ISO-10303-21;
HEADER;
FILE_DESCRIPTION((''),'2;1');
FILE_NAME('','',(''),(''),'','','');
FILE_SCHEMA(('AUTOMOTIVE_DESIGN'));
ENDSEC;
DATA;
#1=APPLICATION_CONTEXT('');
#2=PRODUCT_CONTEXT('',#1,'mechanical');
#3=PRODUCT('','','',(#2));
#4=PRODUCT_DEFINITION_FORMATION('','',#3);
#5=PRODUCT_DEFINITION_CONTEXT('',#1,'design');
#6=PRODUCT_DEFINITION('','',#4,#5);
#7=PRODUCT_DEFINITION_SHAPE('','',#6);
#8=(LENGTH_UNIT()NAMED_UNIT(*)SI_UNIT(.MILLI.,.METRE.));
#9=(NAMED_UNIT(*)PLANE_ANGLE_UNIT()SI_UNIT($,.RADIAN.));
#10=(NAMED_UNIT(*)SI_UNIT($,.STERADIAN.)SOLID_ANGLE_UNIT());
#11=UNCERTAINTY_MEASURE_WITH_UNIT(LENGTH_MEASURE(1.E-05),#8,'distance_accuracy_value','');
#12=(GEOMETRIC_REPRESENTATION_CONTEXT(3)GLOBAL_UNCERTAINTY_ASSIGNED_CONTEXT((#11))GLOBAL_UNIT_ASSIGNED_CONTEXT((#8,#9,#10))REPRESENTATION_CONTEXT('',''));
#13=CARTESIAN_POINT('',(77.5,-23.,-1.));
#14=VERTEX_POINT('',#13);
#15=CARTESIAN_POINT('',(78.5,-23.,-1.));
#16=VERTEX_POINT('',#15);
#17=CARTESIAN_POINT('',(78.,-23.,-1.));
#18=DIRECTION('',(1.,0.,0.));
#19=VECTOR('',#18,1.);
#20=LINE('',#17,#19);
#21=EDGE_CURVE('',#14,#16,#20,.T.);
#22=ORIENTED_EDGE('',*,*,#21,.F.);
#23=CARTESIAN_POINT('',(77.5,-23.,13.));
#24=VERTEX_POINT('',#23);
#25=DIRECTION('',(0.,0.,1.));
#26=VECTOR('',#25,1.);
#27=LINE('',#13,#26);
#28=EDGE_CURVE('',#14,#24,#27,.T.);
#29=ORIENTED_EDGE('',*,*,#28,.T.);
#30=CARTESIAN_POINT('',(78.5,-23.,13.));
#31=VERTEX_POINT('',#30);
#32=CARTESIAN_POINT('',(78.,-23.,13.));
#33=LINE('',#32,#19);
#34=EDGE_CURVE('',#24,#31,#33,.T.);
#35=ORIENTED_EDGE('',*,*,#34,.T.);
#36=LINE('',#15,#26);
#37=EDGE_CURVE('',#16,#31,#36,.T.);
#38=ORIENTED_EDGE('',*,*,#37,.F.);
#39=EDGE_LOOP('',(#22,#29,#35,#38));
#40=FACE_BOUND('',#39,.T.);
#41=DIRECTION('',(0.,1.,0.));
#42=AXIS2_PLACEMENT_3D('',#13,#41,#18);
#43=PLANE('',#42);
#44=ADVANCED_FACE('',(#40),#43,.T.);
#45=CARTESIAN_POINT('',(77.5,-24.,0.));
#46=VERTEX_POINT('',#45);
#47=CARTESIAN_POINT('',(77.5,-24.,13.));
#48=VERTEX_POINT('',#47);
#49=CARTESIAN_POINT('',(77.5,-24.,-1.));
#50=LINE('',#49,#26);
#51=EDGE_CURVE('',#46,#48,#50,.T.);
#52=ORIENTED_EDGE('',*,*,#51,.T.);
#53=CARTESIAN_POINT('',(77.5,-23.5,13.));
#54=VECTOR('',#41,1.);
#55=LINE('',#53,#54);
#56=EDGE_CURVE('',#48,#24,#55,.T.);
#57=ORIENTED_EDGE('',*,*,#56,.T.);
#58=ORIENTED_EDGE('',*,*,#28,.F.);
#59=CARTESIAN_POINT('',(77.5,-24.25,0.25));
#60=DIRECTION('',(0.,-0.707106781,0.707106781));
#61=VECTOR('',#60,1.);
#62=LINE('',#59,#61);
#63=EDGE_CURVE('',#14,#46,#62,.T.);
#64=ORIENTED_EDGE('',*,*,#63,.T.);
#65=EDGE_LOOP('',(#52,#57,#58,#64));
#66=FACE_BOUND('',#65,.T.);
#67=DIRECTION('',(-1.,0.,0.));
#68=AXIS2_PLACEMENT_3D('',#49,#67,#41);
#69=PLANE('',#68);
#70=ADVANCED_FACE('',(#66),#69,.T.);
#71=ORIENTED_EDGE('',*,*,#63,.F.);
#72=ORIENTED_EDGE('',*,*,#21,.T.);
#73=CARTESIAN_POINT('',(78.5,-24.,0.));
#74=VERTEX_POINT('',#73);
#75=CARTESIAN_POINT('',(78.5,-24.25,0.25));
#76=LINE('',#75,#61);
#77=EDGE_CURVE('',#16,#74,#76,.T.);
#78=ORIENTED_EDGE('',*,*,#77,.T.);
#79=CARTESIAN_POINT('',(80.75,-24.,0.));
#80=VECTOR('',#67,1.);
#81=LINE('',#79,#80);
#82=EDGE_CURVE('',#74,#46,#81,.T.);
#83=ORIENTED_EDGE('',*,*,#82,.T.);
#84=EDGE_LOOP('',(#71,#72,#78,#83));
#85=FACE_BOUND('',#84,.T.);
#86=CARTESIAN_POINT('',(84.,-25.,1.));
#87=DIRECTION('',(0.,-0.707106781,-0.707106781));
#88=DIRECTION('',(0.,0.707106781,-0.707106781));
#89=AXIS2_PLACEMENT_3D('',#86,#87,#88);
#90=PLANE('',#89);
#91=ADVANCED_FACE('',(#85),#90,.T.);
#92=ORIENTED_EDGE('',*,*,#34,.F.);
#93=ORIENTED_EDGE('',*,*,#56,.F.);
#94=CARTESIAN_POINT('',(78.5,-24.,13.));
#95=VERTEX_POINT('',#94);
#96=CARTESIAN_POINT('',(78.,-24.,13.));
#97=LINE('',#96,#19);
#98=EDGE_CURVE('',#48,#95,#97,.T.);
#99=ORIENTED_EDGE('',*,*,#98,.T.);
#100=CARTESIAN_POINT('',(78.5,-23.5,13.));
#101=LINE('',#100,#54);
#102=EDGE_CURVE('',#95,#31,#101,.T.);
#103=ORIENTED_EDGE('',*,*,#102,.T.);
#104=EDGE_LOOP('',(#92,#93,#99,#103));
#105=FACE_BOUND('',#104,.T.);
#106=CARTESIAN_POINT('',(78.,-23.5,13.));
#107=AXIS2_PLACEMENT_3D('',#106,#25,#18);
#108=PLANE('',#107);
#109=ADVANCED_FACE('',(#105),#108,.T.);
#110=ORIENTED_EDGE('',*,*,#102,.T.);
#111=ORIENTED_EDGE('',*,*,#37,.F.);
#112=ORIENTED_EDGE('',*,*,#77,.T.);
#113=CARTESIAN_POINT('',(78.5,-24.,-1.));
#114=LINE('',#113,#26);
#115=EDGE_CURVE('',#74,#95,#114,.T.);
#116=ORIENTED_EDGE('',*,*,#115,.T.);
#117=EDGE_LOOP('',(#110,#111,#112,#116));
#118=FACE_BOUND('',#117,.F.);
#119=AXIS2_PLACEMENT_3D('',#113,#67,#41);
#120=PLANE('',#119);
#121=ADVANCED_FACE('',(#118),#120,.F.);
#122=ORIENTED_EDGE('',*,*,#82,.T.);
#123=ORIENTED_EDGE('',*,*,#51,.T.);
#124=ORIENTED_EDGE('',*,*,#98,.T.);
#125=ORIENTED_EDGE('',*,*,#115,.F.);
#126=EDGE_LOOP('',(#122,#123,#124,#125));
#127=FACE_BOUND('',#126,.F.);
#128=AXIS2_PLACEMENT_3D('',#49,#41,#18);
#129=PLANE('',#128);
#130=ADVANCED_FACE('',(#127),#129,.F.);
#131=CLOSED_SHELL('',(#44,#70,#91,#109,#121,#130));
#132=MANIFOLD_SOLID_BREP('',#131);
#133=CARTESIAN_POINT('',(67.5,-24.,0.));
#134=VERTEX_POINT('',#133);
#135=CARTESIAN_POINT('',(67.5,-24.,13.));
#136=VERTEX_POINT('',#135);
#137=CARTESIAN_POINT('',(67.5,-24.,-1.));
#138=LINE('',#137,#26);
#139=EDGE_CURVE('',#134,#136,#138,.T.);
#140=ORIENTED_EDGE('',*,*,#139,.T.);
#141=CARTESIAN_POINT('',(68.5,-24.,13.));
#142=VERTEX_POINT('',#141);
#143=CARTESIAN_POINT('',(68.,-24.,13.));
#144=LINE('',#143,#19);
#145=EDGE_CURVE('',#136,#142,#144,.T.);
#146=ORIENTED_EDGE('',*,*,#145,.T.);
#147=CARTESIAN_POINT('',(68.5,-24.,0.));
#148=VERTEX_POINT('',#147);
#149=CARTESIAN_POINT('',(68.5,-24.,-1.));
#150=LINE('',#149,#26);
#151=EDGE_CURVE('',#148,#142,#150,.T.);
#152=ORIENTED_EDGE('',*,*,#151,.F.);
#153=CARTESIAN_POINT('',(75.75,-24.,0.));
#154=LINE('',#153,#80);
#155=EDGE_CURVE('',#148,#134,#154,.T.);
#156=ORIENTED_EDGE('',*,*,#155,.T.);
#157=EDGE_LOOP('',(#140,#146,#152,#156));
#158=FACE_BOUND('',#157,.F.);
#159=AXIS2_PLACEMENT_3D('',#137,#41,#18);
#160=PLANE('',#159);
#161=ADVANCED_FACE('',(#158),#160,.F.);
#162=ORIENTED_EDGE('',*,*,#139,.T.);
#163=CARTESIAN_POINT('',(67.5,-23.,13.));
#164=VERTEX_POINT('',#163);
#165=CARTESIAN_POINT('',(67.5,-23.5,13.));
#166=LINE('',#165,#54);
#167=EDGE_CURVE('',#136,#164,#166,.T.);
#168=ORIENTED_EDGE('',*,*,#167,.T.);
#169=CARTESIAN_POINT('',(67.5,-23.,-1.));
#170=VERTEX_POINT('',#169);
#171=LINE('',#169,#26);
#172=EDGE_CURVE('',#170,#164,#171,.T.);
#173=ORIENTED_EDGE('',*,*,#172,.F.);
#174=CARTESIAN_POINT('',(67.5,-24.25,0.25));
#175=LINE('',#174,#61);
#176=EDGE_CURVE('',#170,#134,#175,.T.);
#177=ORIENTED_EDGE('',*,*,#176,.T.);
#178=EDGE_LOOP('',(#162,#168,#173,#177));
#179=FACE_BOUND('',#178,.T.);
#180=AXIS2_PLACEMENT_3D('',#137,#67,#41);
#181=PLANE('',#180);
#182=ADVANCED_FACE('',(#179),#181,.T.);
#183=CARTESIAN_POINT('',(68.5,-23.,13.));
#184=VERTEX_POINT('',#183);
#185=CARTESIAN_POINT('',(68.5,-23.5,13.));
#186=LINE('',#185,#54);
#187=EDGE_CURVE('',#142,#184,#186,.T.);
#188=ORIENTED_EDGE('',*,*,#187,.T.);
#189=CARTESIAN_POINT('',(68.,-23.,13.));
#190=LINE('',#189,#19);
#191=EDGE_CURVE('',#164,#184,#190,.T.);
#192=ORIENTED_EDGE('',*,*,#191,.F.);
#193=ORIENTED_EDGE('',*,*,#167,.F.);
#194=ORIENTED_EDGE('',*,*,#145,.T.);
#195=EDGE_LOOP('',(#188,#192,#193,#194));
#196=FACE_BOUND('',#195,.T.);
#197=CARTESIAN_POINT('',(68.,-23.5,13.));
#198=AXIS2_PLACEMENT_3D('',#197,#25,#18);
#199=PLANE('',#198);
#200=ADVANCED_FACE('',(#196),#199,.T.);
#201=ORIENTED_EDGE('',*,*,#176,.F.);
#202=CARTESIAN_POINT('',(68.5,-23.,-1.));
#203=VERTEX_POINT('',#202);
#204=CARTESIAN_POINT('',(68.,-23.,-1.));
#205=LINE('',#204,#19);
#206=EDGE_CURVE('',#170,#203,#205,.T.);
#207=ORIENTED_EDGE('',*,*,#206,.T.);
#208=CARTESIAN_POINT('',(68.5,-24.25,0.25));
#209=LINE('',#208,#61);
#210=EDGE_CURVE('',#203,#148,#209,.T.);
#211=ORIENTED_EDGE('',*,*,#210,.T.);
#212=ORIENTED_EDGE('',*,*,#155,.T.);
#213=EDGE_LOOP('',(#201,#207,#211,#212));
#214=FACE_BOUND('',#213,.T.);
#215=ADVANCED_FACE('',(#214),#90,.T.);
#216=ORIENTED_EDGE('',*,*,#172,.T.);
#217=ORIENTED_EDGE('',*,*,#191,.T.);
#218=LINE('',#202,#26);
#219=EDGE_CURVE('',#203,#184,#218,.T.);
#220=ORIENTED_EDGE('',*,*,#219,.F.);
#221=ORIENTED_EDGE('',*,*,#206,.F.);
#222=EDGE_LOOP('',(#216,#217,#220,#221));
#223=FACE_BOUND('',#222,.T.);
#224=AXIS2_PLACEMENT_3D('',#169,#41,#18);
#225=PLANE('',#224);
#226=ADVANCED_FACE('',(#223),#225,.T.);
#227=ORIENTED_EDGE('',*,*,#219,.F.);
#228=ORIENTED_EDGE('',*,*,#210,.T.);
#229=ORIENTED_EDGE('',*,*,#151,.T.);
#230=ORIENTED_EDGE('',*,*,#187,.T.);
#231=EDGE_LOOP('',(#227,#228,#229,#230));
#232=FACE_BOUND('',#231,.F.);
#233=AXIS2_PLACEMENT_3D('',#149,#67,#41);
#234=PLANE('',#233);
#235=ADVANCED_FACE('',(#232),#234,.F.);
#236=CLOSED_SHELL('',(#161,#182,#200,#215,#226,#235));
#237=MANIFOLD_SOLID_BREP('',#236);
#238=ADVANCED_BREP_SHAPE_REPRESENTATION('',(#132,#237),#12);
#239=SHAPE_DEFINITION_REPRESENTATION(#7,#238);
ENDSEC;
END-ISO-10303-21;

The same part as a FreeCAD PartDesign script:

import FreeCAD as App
import Part
import Sketcher

V = App.Vector


def add_polygon(sketch, points):
    """Adds a closed chain of lines whose ends are joined by coincident constraints."""
    first, n = sketch.GeometryCount, len(points)
    for a, b in zip(points, points[1:] + points[:1]):
        sketch.addGeometry(Part.LineSegment(App.Vector(*a, 0), App.Vector(*b, 0)), False)
    for i in range(n):
        sketch.addConstraint(Sketcher.Constraint("Coincident", first + i, 2, first + (i + 1) % n, 1))

doc = App.newDocument("Part")
params = doc.addObject("Spreadsheet::Sheet", "Params")
for row, (alias, value) in enumerate([
    ("sketch1_width", "3 mm"),
    ("pad1_length", "20 mm"),
    ("sketch2_width", "1 mm"),
    ("pad2_length", "14 mm"),
], start=1):
    params.set(f"A{row}", alias)
    params.set(f"B{row}", "=" + value)
    params.setAlias(f"B{row}", alias)

body = doc.addObject("PartDesign::Body", "Body")

# Sketch on YZ plane
sketch1 = body.newObject("Sketcher::SketchObject", "Sketch")
sketch1.AttachmentSupport = (doc.getObject("YZ_Plane"), [""])
sketch1.MapMode = "FlatFace"
sketch1.AttachmentOffset = App.Placement(V(0, 0, 84), App.Rotation())
add_polygon(sketch1, [(-22, -2), (-25, 1), (-25, -2)])  # lines 0-2
sketch1.addConstraint([
    Sketcher.Constraint("Vertical", 1),
    Sketcher.Constraint("Horizontal", 2),
    Sketcher.Constraint("Equal", 2, 1),
    Sketcher.Constraint("DistanceX", 2, 1, 2, 2, 3.0),
    Sketcher.Constraint("DistanceX", 0, 2, -1, 1, 25.0),
    Sketcher.Constraint("DistanceY", -1, 1, 0, 2, 1.0),
])
sketch1.setExpression("Constraints[6]", "Params.sketch1_width")
pad1 = body.newObject("PartDesign::Pad", "Pad")
pad1.Profile = sketch1
pad1.setExpression("Length", "Params.pad1_length")
pad1.Reversed = True
body2 = doc.addObject("PartDesign::Body", "Body001")
body2.AllowCompound = True

# Sketch on XY plane
sketch2 = body2.newObject("Sketcher::SketchObject", "Sketch001")
sketch2.AttachmentSupport = (doc.getObject("XY_Plane001"), [""])
sketch2.MapMode = "FlatFace"
sketch2.AttachmentOffset = App.Placement(V(0, 0, -1), App.Rotation())
add_polygon(sketch2, [(67.5, -23), (67.5, -24), (68.5, -24), (68.5, -23)])  # lines 0-3
add_polygon(sketch2, [(77.5, -23), (77.5, -24), (78.5, -24), (78.5, -23)])  # lines 4-7
sketch2.addConstraint([
    Sketcher.Constraint("Vertical", 0),
    Sketcher.Constraint("Horizontal", 1),
    Sketcher.Constraint("Vertical", 2),
    Sketcher.Constraint("Horizontal", 3),
    Sketcher.Constraint("Vertical", 4),
    Sketcher.Constraint("Horizontal", 5),
    Sketcher.Constraint("Vertical", 6),
    Sketcher.Constraint("Horizontal", 7),
    Sketcher.Constraint("Horizontal", 1, 2, 4, 2),
    Sketcher.Constraint("Horizontal", 3, 2, 6, 2),
    Sketcher.Constraint("Equal", 3, 5),
    Sketcher.Constraint("Equal", 7, 0),
    Sketcher.Constraint("DistanceX", 1, 1, 1, 2, 1.0),
    Sketcher.Constraint("DistanceY", 0, 2, -1, 1, 24.0),
    Sketcher.Constraint("DistanceX", 1, 2, 4, 2, 9.0),
    Sketcher.Constraint("DistanceX", -1, 1, 0, 2, 67.5),
])
sketch2.setExpression("Constraints[20]", "Params.sketch2_width")
pad2 = body2.newObject("PartDesign::Pad", "Pad001")
pad2.Profile = sketch2
pad2.setExpression("Length", "Params.pad2_length")
doc.recompute()

boolean = body2.newObject("PartDesign::Boolean", "Boolean")
boolean.Type = "Cut"
boolean.addObjects([body])

doc.recompute()
